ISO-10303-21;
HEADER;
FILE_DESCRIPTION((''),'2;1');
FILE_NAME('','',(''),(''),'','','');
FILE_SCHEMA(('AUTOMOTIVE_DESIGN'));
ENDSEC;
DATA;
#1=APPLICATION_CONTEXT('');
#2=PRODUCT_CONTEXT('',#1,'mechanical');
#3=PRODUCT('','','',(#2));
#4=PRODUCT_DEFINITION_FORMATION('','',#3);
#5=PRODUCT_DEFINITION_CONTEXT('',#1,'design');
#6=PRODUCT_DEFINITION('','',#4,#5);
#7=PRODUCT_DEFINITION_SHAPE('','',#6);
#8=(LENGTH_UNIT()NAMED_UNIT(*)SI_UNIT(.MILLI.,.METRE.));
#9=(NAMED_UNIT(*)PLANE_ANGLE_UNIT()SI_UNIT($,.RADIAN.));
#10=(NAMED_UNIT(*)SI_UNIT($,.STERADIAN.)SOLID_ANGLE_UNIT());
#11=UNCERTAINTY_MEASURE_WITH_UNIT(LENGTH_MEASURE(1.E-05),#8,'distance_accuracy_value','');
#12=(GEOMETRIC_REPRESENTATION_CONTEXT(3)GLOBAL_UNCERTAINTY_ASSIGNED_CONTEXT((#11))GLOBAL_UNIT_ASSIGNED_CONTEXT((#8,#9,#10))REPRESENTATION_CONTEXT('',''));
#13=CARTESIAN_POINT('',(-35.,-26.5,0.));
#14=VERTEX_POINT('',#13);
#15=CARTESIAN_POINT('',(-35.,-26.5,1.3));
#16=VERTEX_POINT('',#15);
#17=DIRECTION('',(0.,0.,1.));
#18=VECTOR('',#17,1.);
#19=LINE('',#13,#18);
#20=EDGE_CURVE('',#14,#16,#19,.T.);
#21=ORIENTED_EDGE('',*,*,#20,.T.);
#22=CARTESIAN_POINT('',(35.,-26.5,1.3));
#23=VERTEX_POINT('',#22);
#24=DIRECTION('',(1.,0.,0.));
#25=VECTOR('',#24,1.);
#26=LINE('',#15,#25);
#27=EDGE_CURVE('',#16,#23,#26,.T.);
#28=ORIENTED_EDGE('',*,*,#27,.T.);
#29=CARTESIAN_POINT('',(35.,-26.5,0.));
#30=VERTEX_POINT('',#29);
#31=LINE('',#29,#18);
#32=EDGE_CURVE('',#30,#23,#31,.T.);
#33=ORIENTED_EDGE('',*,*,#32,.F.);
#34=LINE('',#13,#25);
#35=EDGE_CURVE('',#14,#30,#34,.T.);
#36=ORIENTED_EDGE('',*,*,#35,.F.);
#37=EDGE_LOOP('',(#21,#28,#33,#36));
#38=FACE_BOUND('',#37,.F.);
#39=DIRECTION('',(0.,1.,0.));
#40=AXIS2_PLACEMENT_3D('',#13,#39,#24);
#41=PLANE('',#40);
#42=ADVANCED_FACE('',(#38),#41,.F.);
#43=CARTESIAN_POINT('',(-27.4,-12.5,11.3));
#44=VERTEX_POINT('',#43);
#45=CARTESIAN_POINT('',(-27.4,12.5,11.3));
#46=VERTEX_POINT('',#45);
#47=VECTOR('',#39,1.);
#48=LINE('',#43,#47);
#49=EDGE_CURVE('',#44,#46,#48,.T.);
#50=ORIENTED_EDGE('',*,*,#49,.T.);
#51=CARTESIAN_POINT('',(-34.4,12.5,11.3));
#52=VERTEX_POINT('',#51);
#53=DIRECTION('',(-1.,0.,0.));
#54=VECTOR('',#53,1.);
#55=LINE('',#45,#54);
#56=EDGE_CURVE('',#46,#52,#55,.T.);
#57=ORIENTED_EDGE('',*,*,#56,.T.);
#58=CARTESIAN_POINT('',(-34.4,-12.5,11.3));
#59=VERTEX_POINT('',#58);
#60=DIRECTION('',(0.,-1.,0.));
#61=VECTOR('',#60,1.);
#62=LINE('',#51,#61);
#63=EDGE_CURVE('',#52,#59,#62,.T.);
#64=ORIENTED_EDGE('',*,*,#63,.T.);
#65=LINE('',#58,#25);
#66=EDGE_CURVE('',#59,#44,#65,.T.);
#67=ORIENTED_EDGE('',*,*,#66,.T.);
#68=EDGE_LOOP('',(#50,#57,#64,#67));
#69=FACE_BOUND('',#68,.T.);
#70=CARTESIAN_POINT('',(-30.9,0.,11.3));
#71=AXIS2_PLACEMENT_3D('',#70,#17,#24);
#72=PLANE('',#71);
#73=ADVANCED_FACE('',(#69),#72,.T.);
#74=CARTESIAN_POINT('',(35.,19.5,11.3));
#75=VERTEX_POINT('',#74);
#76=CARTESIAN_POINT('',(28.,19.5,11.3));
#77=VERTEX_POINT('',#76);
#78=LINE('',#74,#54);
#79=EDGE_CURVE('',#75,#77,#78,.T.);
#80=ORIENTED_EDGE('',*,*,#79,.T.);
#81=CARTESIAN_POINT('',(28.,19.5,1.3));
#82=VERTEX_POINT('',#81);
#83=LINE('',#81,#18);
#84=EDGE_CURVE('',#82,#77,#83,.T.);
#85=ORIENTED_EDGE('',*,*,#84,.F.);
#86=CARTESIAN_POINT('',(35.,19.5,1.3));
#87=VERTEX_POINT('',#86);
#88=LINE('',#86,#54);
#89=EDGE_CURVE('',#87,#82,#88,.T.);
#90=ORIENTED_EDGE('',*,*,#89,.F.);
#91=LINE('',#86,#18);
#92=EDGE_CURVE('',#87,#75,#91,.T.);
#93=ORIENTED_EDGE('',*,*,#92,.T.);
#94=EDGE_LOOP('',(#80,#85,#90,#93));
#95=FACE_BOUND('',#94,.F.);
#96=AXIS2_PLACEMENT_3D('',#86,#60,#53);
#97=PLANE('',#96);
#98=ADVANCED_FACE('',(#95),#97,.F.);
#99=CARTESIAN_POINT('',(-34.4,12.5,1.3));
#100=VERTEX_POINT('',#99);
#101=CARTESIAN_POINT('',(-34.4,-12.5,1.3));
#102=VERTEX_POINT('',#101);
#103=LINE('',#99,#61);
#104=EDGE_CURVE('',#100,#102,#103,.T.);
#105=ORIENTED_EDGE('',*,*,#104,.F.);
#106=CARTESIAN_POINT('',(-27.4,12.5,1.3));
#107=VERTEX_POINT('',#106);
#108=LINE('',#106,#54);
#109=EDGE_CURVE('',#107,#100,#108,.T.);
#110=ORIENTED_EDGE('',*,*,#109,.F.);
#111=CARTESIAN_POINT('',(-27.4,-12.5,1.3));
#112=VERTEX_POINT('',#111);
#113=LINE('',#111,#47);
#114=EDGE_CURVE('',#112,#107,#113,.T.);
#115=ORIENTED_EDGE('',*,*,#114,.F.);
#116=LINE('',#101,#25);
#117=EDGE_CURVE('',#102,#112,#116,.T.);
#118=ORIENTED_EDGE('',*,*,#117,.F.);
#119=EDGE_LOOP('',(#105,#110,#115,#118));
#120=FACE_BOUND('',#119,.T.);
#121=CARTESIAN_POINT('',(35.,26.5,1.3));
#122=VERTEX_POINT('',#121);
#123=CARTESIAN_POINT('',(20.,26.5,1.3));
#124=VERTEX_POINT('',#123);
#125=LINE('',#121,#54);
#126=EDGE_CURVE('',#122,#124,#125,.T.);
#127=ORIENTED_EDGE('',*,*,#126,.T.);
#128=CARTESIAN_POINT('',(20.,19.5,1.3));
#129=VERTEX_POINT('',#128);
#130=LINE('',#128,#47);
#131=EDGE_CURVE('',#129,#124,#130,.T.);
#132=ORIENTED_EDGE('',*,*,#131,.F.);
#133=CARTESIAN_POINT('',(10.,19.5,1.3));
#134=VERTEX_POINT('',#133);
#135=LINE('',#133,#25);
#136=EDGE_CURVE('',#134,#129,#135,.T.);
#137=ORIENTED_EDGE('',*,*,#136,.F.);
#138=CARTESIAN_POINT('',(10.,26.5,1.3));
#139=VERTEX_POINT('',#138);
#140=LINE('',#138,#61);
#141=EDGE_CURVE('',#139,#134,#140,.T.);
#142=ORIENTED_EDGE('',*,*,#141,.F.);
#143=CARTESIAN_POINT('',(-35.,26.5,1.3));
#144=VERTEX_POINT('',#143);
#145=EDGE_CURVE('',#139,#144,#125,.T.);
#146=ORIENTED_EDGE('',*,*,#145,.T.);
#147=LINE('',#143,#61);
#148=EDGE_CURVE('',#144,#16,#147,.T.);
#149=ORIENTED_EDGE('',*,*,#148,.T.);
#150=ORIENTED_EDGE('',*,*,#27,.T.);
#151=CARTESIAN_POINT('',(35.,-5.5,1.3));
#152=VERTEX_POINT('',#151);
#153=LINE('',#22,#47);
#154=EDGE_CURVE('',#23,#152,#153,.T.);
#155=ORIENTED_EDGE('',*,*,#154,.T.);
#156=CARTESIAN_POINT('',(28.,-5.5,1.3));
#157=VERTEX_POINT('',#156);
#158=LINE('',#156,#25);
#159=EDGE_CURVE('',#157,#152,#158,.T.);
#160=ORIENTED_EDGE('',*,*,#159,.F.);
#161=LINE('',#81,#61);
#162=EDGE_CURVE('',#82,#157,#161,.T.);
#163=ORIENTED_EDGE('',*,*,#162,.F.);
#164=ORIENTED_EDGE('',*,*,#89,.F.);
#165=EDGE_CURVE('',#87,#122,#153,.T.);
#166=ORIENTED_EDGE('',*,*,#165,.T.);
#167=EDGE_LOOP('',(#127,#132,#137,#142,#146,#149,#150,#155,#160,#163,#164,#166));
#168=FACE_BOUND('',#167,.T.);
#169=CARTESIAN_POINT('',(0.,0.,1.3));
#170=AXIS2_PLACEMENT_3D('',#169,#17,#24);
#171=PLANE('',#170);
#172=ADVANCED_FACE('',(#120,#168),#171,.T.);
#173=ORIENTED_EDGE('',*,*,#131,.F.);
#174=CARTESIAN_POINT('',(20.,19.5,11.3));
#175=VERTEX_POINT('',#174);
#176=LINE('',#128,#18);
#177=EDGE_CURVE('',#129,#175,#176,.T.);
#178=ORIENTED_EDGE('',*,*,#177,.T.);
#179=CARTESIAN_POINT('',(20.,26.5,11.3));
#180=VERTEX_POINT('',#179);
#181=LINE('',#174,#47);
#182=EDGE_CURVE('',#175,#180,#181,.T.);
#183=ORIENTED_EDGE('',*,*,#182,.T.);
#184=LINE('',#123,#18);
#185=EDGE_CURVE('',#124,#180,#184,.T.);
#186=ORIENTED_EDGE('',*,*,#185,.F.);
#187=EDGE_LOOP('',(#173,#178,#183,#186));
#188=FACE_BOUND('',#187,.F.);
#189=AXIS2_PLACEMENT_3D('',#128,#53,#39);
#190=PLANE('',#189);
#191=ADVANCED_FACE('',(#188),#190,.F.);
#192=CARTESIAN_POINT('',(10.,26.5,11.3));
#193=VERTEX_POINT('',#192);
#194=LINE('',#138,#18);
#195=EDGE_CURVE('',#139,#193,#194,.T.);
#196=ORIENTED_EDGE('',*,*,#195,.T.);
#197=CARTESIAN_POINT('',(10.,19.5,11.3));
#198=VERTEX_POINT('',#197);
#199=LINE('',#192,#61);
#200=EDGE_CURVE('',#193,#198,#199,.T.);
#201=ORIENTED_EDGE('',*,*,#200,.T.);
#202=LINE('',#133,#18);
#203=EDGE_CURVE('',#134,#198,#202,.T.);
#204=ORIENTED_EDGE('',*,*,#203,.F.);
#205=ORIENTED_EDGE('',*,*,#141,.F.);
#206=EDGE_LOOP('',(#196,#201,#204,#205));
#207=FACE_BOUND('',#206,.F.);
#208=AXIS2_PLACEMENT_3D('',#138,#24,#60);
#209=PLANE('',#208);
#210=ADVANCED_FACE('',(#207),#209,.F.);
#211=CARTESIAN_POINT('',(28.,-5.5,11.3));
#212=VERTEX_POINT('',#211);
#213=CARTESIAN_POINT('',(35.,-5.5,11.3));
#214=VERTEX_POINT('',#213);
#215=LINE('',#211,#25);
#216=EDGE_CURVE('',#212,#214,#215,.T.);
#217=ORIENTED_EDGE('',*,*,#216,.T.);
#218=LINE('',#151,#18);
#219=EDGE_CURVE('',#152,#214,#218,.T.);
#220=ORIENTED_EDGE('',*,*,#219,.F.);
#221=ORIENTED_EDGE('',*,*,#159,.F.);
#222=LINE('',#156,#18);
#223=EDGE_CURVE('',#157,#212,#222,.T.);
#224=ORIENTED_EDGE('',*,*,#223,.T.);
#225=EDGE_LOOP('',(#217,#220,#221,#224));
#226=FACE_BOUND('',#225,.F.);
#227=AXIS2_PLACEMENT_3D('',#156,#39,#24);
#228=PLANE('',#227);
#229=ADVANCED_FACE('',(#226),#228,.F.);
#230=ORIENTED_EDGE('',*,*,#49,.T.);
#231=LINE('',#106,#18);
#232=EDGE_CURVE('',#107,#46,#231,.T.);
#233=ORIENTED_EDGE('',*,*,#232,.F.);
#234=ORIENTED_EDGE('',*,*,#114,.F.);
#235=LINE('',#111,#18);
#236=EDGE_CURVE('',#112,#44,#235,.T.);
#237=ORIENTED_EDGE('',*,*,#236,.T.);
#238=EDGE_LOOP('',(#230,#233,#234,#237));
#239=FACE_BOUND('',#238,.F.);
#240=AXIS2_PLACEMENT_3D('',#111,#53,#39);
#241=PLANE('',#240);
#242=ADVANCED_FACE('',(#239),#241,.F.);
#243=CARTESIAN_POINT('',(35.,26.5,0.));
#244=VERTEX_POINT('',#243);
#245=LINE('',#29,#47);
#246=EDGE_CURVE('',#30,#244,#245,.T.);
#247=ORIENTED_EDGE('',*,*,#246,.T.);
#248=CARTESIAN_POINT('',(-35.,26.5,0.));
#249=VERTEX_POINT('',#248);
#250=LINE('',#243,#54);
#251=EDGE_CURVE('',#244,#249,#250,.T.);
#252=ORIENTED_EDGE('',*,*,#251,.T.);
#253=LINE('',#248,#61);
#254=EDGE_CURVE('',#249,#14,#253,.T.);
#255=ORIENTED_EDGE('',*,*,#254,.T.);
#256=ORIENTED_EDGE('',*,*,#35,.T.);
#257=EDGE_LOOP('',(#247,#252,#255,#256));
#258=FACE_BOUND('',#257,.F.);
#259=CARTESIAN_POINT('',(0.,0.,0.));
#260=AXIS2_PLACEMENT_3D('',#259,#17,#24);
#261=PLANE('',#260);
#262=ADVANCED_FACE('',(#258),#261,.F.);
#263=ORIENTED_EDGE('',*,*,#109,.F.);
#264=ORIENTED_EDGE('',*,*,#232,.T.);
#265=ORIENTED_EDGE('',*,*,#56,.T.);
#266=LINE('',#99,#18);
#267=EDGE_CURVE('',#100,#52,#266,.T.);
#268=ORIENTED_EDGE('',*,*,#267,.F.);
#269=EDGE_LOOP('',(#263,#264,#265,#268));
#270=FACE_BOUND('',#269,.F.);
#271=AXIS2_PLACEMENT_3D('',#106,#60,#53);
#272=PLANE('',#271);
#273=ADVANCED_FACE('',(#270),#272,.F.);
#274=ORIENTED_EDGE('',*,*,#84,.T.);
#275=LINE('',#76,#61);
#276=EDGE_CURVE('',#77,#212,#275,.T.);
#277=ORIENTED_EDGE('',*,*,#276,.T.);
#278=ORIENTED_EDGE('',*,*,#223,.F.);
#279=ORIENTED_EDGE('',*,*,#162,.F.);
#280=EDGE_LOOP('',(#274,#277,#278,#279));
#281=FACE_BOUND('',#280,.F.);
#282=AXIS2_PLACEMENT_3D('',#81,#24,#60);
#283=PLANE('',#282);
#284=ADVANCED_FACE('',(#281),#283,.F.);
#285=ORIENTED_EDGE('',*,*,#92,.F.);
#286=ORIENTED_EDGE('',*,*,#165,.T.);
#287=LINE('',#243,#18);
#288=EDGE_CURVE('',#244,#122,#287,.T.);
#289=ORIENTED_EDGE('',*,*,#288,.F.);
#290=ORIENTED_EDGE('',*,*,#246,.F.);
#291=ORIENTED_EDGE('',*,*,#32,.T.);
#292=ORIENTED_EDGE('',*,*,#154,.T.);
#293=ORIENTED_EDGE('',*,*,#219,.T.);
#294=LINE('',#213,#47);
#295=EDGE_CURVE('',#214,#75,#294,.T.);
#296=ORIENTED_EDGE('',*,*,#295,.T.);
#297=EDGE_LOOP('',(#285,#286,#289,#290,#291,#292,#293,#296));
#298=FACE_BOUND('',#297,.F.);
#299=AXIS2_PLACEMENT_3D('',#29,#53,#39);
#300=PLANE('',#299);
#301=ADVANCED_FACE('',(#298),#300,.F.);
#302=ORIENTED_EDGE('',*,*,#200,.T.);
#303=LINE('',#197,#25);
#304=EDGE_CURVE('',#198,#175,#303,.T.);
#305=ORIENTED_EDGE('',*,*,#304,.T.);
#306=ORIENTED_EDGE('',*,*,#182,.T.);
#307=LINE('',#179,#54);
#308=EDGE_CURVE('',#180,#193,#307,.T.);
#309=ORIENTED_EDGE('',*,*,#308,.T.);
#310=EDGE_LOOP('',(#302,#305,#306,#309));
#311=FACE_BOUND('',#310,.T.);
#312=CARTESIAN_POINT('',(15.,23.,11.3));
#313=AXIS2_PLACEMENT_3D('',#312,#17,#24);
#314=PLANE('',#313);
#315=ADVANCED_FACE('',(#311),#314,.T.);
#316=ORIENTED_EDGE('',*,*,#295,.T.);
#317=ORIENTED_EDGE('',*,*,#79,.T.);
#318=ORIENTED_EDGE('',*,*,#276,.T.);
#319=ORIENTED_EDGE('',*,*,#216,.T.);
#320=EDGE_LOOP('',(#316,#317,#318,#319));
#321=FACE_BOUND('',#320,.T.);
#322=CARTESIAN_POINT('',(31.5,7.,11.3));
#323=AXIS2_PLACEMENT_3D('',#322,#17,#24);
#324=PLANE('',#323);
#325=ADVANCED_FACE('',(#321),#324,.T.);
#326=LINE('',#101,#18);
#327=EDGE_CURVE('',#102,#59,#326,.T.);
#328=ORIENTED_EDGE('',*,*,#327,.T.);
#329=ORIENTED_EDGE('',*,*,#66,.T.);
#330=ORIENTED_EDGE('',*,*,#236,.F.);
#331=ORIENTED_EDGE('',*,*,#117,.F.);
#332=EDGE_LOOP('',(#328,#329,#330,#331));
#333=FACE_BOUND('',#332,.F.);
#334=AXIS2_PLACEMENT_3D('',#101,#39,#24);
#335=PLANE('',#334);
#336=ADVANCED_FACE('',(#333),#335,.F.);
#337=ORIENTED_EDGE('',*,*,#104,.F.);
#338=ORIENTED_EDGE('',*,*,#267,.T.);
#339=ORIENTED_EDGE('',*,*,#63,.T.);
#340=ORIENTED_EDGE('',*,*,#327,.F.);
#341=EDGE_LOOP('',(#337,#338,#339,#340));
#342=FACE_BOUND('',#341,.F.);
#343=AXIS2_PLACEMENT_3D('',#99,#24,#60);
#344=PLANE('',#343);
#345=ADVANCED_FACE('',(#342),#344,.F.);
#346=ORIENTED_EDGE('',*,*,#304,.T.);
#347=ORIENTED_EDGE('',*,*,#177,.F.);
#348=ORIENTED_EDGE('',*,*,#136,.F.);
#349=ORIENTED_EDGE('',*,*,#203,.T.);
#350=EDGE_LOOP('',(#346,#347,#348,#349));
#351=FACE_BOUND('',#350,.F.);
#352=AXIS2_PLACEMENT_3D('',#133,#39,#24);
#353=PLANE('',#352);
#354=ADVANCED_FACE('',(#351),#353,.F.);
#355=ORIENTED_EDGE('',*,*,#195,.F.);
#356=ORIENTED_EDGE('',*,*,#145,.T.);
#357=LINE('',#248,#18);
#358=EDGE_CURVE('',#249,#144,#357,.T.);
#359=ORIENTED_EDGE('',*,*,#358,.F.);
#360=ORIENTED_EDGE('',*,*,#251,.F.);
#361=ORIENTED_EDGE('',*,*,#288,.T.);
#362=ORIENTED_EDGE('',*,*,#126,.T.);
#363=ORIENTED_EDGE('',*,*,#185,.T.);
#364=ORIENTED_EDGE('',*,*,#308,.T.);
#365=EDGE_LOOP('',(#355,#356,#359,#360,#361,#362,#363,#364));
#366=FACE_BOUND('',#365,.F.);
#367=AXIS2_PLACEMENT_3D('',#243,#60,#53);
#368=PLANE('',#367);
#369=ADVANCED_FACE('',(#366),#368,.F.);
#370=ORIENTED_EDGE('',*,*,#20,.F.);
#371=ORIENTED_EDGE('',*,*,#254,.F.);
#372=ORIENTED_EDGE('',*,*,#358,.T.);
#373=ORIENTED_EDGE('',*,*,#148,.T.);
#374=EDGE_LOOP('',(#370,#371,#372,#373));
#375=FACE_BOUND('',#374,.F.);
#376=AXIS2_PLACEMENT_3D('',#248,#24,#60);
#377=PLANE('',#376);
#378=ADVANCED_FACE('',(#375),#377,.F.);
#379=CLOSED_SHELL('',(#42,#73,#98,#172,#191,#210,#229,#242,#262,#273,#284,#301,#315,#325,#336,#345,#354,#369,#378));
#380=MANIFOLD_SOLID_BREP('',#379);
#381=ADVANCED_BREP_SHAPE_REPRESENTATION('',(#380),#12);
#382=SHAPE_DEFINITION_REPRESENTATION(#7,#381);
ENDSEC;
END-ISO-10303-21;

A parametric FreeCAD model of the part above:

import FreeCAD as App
import Part
import Sketcher
from FreeCAD import Vector
Q = App.Units.Quantity

doc = App.newDocument("Part")
body = doc.addObject("PartDesign::Body", "Body")

sketch1 = body.newObject("Sketcher::SketchObject", "Sketch")
sketch1.AttachmentSupport = (doc.getObject("XY_Plane"), [""])
sketch1.MapMode = "FlatFace"
sketch1.addGeometry([
    Part.LineSegment(Vector(-35, 26, 0), Vector(-35, -26, 0)),
    Part.LineSegment(Vector(-35, -26, 0), Vector(35, -26, 0)),
    Part.LineSegment(Vector(35, -26, 0), Vector(35, 26, 0)),
    Part.LineSegment(Vector(35, 26, 0), Vector(-35, 26, 0)),
], False)
sketch1.addConstraint([
    Sketcher.Constraint("Coincident", 0, 2, 1, 1),
    Sketcher.Constraint("Coincident", 1, 2, 2, 1),
    Sketcher.Constraint("Coincident", 2, 2, 3, 1),
    Sketcher.Constraint("Coincident", 3, 2, 0, 1),
    Sketcher.Constraint("Vertical", 0),
    Sketcher.Constraint("Horizontal", 1),
    Sketcher.Constraint("Vertical", 2),
    Sketcher.Constraint("Horizontal", 3),
    Sketcher.Constraint("Symmetric", 0, 2, 2, 2, -1, 1),
    Sketcher.Constraint("DistanceX", 0, 2, -1, 1, Q("35 mm")),
    Sketcher.Constraint("DistanceY", 0, 2, 0, 1, Q("53 mm")),
])
pad1 = body.newObject("PartDesign::Pad", "Pad")
pad1.Profile = sketch1
pad1.Length = 1.3

sketch2 = body.newObject("Sketcher::SketchObject", "Sketch001")
sketch2.AttachmentSupport = (doc.getObject("XY_Plane"), [""])
sketch2.MapMode = "FlatFace"
sketch2.AttachmentOffset = App.Placement(Vector(0, 0, 1.3), App.Rotation())
sketch2.addGeometry([
    Part.LineSegment(Vector(10, 26, 0), Vector(10, 20, 0)),
    Part.LineSegment(Vector(10, 20, 0), Vector(20, 20, 0)),
    Part.LineSegment(Vector(20, 20, 0), Vector(20, 26, 0)),
    Part.LineSegment(Vector(20, 26, 0), Vector(10, 26, 0)),
    Part.LineSegment(Vector(28, 20, 0), Vector(28, -6, 0)),
    Part.LineSegment(Vector(28, -6, 0), Vector(35, -6, 0)),
    Part.LineSegment(Vector(35, -6, 0), Vector(35, 20, 0)),
    Part.LineSegment(Vector(35, 20, 0), Vector(28, 20, 0)),
    Part.LineSegment(Vector(-34, 12, 0), Vector(-34, -12, 0)),
    Part.LineSegment(Vector(-34, -12, 0), Vector(-27, -12, 0)),
    Part.LineSegment(Vector(-27, -12, 0), Vector(-27, 12, 0)),
    Part.LineSegment(Vector(-27, 12, 0), Vector(-34, 12, 0)),
], False)
sketch2.addConstraint([
    Sketcher.Constraint("Coincident", 0, 2, 1, 1),
    Sketcher.Constraint("Coincident", 1, 2, 2, 1),
    Sketcher.Constraint("Coincident", 2, 2, 3, 1),
    Sketcher.Constraint("Coincident", 3, 2, 0, 1),
    Sketcher.Constraint("Coincident", 4, 2, 5, 1),
    Sketcher.Constraint("Coincident", 5, 2, 6, 1),
    Sketcher.Constraint("Coincident", 6, 2, 7, 1),
    Sketcher.Constraint("Coincident", 7, 2, 4, 1),
    Sketcher.Constraint("Coincident", 8, 2, 9, 1),
    Sketcher.Constraint("Coincident", 9, 2, 10, 1),
    Sketcher.Constraint("Coincident", 10, 2, 11, 1),
    Sketcher.Constraint("Coincident", 11, 2, 8, 1),
    Sketcher.Constraint("Vertical", 0),
    Sketcher.Constraint("Horizontal", 1),
    Sketcher.Constraint("Vertical", 2),
    Sketcher.Constraint("Horizontal", 3),
    Sketcher.Constraint("Vertical", 4),
    Sketcher.Constraint("Horizontal", 5),
    Sketcher.Constraint("Vertical", 6),
    Sketcher.Constraint("Horizontal", 7),
    Sketcher.Constraint("Vertical", 8),
    Sketcher.Constraint("Horizontal", 9),
    Sketcher.Constraint("Vertical", 10),
    Sketcher.Constraint("Horizontal", 11),
    Sketcher.Constraint("Horizontal", 1, 2, 6, 2),
    Sketcher.Constraint("Equal", 7, 9),
    Sketcher.Constraint("Equal", 11, 0),
    Sketcher.Constraint("Equal", 6, 8),
    Sketcher.Constraint("DistanceX", 1, 1, 1, 2, Q("10 mm")),
    Sketcher.Constraint("DistanceX", -1, 1, 0, 2, Q("10 mm")),
    Sketcher.Constraint("DistanceX", -1, 1, 4, 2, Q("28 mm")),
    Sketcher.Constraint("DistanceX", -1, 1, 5, 2, Q("35 mm")),
    Sketcher.Constraint("DistanceY", 4, 2, 4, 1, Q("25 mm")),
    Sketcher.Constraint("DistanceY", 8, 2, 0, 2, Q("32 mm")),
    Sketcher.Constraint("DistanceY", -1, 1, 0, 2, Q("19.5 mm")),
    Sketcher.Constraint("DistanceX", 8, 2, -1, 1, Q("34.4 mm")),
])
pad2 = body.newObject("PartDesign::Pad", "Pad001")
pad2.Profile = sketch2
pad2.Length = 10

doc.recompute()
